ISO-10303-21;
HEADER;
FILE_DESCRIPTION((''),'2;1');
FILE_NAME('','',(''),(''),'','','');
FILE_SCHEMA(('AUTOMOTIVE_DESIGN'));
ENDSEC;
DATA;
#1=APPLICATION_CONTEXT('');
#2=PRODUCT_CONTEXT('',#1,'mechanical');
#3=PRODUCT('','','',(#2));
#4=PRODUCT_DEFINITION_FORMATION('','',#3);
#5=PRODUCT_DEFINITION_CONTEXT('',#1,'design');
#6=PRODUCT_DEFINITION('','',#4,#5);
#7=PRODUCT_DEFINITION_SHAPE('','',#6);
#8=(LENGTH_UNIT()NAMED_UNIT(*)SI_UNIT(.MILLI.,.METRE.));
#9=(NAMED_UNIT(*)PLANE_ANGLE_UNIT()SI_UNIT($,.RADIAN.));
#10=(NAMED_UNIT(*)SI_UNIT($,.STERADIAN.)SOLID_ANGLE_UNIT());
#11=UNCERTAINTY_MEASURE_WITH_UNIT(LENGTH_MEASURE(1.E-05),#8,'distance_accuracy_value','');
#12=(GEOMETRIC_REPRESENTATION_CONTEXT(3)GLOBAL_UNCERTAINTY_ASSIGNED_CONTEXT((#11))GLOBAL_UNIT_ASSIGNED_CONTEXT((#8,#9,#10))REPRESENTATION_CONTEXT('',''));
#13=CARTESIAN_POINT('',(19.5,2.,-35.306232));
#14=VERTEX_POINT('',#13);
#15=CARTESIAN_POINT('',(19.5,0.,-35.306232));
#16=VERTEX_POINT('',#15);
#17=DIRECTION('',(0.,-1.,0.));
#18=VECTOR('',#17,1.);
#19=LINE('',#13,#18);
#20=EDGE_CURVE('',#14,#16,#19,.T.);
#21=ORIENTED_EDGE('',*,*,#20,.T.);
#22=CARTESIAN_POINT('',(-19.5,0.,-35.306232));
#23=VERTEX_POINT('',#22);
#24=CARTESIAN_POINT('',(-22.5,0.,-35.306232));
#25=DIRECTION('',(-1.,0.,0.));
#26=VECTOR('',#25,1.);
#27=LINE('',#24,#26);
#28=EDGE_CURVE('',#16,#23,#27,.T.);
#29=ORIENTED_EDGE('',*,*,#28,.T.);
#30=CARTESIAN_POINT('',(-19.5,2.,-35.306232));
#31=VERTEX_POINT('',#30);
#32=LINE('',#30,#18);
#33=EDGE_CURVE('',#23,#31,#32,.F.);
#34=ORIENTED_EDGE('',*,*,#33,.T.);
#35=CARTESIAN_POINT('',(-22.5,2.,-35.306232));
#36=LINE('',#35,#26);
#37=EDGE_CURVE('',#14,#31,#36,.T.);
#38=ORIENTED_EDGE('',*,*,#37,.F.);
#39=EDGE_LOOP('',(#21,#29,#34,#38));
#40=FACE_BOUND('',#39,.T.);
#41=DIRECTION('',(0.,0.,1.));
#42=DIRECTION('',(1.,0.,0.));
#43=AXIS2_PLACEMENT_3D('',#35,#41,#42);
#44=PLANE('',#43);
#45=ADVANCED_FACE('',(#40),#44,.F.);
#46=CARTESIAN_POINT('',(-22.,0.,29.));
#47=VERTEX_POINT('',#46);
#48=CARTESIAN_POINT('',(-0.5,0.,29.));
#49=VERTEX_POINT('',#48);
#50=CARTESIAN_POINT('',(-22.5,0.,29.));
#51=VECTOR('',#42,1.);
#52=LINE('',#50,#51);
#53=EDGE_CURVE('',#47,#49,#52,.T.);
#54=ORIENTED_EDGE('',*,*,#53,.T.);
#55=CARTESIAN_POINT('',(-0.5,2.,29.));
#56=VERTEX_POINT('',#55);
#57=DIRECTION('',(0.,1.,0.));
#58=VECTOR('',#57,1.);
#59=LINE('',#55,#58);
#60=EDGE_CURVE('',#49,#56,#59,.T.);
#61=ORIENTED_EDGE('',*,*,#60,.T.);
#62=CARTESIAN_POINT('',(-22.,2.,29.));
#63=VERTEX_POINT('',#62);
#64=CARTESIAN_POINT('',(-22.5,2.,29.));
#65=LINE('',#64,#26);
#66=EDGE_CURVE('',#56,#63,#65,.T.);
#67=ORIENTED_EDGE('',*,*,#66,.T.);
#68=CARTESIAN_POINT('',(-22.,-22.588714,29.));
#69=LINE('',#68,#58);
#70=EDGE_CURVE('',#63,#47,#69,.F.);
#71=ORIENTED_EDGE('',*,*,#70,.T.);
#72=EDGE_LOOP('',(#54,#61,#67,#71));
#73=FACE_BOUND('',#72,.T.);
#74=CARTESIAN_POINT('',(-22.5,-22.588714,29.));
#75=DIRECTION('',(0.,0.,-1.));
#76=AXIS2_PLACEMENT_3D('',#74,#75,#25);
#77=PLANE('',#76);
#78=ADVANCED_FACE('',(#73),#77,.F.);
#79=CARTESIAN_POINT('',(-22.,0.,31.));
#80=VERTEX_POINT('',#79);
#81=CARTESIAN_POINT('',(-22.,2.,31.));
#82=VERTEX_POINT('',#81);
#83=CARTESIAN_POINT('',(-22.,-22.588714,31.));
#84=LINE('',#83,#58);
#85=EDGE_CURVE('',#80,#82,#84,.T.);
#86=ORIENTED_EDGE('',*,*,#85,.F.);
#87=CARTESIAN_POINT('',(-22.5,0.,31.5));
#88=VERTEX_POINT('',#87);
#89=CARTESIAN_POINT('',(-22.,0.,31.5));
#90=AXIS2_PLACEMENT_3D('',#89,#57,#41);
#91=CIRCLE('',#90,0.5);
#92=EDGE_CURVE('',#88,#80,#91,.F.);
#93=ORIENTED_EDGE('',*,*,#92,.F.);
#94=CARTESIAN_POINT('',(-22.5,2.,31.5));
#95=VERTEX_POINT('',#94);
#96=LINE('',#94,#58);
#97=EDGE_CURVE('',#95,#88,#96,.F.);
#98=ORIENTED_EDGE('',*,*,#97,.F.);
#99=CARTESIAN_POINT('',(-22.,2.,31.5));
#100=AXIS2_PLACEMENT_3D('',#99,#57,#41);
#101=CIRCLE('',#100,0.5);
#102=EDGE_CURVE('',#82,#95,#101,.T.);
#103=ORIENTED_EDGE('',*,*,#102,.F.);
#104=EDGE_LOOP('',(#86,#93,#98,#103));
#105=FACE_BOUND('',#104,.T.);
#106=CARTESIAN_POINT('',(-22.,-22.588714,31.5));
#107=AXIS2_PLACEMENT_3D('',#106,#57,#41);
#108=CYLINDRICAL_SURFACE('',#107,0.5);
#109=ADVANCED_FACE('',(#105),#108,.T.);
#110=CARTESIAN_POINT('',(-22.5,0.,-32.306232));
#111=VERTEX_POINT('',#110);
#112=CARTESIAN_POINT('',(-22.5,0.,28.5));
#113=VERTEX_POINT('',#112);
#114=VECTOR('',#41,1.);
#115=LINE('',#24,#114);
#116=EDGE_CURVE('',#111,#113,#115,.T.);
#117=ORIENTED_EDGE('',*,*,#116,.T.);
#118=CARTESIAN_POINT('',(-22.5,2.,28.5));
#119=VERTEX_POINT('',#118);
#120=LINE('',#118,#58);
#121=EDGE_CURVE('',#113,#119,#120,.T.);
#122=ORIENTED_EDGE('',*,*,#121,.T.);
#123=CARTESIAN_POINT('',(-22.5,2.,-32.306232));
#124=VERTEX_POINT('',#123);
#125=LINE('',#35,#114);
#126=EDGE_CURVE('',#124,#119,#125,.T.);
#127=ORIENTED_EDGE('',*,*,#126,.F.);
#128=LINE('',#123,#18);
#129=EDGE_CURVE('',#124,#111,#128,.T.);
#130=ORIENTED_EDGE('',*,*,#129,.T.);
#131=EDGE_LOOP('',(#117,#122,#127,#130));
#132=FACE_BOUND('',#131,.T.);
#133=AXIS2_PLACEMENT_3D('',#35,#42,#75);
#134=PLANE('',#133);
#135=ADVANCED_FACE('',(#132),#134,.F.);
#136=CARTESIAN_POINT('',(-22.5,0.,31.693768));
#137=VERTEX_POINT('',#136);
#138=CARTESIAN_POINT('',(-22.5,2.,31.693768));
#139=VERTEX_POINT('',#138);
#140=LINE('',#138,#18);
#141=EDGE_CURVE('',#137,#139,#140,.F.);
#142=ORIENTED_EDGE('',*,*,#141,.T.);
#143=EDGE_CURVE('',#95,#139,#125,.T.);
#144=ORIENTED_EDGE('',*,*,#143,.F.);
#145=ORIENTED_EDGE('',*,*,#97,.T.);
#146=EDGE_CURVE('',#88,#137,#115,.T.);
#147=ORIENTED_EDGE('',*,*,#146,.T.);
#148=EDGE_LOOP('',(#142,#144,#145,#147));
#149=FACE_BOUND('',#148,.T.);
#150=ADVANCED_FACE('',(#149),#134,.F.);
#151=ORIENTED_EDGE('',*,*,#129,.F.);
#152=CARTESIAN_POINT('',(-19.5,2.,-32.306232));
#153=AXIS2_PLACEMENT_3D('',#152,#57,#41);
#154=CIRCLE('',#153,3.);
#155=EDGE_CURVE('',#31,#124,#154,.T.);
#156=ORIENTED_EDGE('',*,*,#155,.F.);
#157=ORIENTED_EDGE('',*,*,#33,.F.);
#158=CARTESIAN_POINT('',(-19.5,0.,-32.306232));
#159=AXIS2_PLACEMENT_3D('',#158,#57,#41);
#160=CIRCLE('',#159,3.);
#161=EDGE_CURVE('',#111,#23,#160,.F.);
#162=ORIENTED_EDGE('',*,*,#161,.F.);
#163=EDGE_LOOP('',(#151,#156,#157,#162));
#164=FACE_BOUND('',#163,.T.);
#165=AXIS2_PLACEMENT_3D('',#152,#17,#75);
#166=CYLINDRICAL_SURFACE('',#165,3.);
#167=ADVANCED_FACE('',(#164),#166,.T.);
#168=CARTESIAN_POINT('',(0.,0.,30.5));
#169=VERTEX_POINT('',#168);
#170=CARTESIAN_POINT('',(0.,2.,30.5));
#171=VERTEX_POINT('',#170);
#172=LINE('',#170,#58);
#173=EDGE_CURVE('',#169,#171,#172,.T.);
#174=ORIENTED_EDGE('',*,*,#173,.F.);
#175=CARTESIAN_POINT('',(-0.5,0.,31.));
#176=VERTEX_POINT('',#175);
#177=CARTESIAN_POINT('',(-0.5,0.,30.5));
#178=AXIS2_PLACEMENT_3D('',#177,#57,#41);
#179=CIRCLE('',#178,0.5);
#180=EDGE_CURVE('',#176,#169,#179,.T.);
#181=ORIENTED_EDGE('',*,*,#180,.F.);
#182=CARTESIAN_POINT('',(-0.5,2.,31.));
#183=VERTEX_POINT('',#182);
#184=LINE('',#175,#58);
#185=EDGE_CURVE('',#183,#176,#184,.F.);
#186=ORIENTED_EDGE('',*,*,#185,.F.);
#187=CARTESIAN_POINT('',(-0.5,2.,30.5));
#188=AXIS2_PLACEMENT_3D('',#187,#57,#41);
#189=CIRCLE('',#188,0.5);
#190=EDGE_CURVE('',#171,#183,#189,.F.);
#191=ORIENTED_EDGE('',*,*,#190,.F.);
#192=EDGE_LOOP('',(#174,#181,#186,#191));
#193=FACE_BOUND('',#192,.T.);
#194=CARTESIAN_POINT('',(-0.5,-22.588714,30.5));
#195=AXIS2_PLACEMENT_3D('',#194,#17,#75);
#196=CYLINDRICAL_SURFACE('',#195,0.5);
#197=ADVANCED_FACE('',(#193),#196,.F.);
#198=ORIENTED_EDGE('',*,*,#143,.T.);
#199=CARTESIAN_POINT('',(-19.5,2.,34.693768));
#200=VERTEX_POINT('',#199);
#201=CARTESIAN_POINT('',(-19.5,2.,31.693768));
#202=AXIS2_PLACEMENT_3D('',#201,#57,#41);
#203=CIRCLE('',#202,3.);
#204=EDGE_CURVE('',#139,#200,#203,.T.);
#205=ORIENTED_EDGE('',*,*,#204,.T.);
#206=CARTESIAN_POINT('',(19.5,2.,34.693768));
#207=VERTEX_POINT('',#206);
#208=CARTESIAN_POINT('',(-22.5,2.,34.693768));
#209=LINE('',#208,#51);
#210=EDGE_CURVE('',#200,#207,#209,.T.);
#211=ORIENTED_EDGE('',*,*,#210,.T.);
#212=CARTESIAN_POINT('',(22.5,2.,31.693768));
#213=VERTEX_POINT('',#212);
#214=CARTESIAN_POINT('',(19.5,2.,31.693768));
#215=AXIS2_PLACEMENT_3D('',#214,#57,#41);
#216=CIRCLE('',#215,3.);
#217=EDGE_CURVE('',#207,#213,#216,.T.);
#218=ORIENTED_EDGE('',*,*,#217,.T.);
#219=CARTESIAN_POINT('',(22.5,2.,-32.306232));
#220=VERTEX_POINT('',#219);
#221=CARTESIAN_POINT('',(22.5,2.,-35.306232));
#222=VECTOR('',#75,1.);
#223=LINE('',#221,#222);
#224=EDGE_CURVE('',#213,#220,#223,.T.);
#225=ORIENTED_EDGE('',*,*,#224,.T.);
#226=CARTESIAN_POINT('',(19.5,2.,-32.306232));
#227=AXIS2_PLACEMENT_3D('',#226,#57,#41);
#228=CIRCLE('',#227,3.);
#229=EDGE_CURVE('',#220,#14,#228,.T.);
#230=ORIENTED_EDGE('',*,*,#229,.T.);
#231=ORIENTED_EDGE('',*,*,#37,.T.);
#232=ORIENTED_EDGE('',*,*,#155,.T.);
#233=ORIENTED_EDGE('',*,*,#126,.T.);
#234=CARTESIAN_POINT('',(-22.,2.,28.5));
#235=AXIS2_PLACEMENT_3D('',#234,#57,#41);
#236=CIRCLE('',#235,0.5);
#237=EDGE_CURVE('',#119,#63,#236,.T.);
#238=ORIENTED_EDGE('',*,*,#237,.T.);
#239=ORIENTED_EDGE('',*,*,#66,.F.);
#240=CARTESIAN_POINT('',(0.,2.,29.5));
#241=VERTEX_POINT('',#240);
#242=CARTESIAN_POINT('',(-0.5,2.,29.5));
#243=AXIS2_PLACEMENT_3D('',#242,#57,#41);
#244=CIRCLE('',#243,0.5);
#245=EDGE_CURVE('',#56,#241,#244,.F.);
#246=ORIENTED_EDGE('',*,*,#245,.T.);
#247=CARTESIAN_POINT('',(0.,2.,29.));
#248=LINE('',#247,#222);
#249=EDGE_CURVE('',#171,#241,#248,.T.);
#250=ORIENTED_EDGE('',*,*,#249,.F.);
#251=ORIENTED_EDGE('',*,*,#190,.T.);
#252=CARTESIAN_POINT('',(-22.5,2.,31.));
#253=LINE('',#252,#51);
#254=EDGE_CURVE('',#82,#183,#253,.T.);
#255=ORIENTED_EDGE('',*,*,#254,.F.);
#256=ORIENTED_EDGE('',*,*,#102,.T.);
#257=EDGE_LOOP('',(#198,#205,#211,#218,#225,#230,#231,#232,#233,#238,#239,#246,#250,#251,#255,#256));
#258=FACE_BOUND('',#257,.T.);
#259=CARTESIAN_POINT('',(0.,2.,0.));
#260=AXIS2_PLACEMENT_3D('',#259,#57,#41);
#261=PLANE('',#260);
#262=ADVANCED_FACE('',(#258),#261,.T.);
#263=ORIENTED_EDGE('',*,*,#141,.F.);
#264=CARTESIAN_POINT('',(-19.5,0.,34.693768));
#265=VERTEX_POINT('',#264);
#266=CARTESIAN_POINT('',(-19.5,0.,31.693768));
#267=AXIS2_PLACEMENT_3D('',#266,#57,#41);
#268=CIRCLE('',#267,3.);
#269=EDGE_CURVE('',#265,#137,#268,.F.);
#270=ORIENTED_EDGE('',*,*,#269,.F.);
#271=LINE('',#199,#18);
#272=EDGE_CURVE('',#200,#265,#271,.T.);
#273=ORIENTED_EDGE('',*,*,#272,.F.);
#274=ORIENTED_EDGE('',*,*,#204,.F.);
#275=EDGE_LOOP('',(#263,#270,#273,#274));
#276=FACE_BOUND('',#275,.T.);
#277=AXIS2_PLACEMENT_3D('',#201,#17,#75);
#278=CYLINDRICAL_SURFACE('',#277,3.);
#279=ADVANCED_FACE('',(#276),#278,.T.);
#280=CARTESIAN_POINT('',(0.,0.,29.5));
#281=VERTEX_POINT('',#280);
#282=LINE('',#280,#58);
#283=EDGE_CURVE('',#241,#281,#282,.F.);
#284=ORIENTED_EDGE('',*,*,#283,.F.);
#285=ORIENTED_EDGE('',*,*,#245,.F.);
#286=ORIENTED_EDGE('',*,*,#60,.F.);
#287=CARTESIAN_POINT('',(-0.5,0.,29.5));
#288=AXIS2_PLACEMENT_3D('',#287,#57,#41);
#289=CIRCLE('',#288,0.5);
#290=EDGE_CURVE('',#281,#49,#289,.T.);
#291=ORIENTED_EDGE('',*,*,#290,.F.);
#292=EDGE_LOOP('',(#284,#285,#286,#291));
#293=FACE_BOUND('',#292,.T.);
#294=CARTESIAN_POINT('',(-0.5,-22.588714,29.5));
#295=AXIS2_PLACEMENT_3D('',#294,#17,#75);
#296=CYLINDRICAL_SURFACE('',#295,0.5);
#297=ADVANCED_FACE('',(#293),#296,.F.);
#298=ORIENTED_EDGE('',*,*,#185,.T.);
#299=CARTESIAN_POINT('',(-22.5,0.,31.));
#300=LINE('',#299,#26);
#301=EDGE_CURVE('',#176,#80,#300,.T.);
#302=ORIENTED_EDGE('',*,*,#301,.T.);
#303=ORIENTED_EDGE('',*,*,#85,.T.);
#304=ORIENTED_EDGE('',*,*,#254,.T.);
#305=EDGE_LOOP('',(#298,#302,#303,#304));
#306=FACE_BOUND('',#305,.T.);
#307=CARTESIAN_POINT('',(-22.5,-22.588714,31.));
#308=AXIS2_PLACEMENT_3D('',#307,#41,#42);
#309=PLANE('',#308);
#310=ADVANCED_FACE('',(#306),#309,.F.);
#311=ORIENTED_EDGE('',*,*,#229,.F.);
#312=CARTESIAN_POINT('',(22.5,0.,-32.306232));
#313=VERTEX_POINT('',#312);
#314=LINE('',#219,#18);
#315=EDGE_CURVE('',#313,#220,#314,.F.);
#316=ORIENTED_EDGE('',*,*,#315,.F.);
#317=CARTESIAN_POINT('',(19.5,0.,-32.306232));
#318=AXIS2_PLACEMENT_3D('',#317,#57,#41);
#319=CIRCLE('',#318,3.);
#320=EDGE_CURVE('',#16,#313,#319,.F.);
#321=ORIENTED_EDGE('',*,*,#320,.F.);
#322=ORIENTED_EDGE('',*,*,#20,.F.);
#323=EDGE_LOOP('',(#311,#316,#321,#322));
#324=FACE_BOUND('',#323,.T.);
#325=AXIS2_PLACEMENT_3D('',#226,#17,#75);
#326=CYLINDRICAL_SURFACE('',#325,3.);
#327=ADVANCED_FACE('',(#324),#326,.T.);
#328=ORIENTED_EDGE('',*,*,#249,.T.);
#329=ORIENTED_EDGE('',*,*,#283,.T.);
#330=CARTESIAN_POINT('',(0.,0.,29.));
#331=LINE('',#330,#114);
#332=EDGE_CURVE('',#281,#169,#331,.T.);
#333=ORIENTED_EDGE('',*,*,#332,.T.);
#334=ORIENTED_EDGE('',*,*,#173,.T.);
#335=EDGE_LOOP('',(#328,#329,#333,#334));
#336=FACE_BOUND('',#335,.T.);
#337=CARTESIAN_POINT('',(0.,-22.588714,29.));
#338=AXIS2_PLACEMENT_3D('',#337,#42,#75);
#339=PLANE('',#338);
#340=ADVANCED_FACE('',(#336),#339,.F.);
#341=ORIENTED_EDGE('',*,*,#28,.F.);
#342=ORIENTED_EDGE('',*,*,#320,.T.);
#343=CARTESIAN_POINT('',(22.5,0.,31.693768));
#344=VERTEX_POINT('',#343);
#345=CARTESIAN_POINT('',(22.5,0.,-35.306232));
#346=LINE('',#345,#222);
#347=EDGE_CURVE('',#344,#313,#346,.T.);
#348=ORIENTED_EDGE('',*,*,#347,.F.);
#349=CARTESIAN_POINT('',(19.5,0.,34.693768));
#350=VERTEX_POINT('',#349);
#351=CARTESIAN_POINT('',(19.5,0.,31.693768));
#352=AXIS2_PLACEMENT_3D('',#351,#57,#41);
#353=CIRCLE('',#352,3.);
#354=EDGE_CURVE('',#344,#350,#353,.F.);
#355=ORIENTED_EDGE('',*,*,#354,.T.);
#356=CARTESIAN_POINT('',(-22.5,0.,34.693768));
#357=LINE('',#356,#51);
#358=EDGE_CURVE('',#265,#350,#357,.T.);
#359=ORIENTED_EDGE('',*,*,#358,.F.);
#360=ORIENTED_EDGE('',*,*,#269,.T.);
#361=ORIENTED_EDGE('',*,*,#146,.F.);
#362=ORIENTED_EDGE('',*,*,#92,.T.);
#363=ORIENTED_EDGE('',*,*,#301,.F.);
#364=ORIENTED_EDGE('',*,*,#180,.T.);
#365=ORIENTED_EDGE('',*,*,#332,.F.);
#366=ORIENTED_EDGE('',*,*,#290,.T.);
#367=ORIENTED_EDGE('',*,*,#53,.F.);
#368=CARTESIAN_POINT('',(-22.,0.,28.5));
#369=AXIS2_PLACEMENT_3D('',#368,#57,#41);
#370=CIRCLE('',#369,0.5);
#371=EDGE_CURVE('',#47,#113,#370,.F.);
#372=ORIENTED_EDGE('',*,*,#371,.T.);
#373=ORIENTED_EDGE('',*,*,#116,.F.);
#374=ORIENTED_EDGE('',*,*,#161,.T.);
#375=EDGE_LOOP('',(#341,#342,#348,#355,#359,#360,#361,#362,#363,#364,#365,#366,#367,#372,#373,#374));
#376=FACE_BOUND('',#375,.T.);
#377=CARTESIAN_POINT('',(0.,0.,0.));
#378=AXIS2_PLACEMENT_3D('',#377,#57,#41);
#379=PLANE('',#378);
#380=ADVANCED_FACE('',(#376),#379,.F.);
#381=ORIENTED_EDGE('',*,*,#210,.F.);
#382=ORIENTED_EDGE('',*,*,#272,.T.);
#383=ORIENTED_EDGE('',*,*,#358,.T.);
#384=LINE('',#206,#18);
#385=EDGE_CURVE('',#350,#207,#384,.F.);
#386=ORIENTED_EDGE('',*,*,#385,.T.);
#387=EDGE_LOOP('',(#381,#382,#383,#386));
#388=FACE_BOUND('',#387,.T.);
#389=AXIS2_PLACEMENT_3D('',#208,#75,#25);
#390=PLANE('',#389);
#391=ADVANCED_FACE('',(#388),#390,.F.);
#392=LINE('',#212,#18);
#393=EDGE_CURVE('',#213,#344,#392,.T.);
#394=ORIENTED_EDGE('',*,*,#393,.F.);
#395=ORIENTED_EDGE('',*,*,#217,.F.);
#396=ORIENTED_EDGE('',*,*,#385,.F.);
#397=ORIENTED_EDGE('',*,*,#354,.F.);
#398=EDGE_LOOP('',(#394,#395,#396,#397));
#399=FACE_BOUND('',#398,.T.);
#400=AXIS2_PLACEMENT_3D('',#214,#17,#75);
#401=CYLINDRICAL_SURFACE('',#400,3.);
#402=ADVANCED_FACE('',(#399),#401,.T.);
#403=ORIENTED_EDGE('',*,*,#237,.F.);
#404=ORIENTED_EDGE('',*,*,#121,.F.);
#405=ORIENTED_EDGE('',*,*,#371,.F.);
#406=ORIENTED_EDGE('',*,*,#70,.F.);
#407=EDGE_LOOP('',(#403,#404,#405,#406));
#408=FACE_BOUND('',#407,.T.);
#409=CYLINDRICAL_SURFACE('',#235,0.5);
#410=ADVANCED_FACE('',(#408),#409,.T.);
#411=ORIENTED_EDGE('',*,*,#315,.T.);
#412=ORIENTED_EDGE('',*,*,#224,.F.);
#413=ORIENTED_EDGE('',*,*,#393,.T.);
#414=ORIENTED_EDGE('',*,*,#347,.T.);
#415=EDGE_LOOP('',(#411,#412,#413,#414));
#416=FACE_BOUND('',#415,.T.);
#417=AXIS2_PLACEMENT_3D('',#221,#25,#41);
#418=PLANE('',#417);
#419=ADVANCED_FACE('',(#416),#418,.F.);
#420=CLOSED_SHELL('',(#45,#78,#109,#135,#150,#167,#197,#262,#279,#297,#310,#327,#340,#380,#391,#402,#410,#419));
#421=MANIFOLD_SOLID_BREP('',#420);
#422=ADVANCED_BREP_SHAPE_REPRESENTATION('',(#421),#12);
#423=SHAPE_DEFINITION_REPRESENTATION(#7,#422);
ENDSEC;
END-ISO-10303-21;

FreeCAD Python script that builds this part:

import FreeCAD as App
import Part
import Sketcher
from FreeCAD import Vector
Q = App.Units.Quantity


def edges_at(feature, points):
    """Names of the edges that pass closest to the given points."""
    edges = feature.Shape.Edges
    near = lambda p: min(range(len(edges)), key=lambda i: edges[i].distToShape(Part.Vertex(*p))[0])
    return sorted({f"Edge{near(p) + 1}" for p in points})


def add_polygon(sketch, points):
    """Adds a closed chain of lines whose ends are joined by coincident constraints."""
    first, n = sketch.GeometryCount, len(points)
    for a, b in zip(points, points[1:] + points[:1]):
        sketch.addGeometry(Part.LineSegment(App.Vector(*a, 0), App.Vector(*b, 0)), False)
    for i in range(n):
        sketch.addConstraint(Sketcher.Constraint("Coincident", first + i, 2, first + (i + 1) % n, 1))

doc = App.newDocument("Part")
body = doc.addObject("PartDesign::Body", "Body")

# Sketch on XZ plane
sketch1 = body.newObject("Sketcher::SketchObject", "Sketch")
sketch1.AttachmentSupport = (doc.getObject("XZ_Plane"), [""])
sketch1.MapMode = "FlatFace"
add_polygon(sketch1, [(-22, -35), (-22, 35), (22, 35), (22, -35)])  # lines 0-3
sketch1.addConstraint([
    Sketcher.Constraint("Vertical", 0),
    Sketcher.Constraint("Horizontal", 1),
    Sketcher.Constraint("Vertical", 2),
    Sketcher.Constraint("Horizontal", 3),
    Sketcher.Constraint("DistanceX", 1, 1, 1, 2, Q("45 mm")),
    Sketcher.Constraint("DistanceY", 0, 1, 0, 2, Q("70 mm")),
    Sketcher.Constraint("DistanceX", 0, 2, -1, 1, Q("22.5 mm")),
    Sketcher.Constraint("DistanceY", -1, 1, 0, 2, Q("34.693768 mm")),
])
pad1 = body.newObject("PartDesign::Pad", "Pad")
pad1.Profile = sketch1
pad1.Length = 2
pad1.Reversed = True

# Sketch on XZ plane
sketch2 = body.newObject("Sketcher::SketchObject", "Sketch001")
sketch2.AttachmentSupport = (doc.getObject("XZ_Plane"), [""])
sketch2.MapMode = "FlatFace"
sketch2.AttachmentOffset = App.Placement(Vector(0, 0, -2), App.Rotation())
add_polygon(sketch2, [(-22.5, 29), (-22.5, 31), (0, 31), (0, 29)])  # lines 0-3
sketch2.addConstraint([
    Sketcher.Constraint("Vertical", 0),
    Sketcher.Constraint("Horizontal", 1),
    Sketcher.Constraint("Vertical", 2),
    Sketcher.Constraint("Horizontal", 3),
    Sketcher.Constraint("PointOnObject", 1, 2, -2),
    Sketcher.Constraint("DistanceY", 0, 1, 0, 2, Q("2 mm")),
    Sketcher.Constraint("DistanceX", 1, 1, 1, 2, Q("22.5 mm")),
    Sketcher.Constraint("DistanceY", -1, 1, 0, 2, Q("31 mm")),
])
pocket1 = body.newObject("PartDesign::Pocket", "Pocket")
pocket1.Profile = sketch2
pocket1.Length = 2
pocket1.Reversed = True
doc.recompute()

fillet = body.newObject("PartDesign::Fillet", "Fillet")
fillet.Base = (pocket1, edges_at(pocket1, [
    (-22.5, 1, -35.306),
    (22.5, 1, -35.306),
    (22.5, 1, 34.694),
    (-22.5, 1, 34.694),
]))
fillet.Radius = 3
doc.recompute()

fillet2 = body.newObject("PartDesign::Fillet", "Fillet001")
fillet2.Base = (fillet, edges_at(fillet, [
    (-22.5, 1, 31),
    (-22.5, 1, 29),
    (0, 1, 29),
    (0, 1, 31),
]))
fillet2.Radius = 0.5

doc.recompute()
